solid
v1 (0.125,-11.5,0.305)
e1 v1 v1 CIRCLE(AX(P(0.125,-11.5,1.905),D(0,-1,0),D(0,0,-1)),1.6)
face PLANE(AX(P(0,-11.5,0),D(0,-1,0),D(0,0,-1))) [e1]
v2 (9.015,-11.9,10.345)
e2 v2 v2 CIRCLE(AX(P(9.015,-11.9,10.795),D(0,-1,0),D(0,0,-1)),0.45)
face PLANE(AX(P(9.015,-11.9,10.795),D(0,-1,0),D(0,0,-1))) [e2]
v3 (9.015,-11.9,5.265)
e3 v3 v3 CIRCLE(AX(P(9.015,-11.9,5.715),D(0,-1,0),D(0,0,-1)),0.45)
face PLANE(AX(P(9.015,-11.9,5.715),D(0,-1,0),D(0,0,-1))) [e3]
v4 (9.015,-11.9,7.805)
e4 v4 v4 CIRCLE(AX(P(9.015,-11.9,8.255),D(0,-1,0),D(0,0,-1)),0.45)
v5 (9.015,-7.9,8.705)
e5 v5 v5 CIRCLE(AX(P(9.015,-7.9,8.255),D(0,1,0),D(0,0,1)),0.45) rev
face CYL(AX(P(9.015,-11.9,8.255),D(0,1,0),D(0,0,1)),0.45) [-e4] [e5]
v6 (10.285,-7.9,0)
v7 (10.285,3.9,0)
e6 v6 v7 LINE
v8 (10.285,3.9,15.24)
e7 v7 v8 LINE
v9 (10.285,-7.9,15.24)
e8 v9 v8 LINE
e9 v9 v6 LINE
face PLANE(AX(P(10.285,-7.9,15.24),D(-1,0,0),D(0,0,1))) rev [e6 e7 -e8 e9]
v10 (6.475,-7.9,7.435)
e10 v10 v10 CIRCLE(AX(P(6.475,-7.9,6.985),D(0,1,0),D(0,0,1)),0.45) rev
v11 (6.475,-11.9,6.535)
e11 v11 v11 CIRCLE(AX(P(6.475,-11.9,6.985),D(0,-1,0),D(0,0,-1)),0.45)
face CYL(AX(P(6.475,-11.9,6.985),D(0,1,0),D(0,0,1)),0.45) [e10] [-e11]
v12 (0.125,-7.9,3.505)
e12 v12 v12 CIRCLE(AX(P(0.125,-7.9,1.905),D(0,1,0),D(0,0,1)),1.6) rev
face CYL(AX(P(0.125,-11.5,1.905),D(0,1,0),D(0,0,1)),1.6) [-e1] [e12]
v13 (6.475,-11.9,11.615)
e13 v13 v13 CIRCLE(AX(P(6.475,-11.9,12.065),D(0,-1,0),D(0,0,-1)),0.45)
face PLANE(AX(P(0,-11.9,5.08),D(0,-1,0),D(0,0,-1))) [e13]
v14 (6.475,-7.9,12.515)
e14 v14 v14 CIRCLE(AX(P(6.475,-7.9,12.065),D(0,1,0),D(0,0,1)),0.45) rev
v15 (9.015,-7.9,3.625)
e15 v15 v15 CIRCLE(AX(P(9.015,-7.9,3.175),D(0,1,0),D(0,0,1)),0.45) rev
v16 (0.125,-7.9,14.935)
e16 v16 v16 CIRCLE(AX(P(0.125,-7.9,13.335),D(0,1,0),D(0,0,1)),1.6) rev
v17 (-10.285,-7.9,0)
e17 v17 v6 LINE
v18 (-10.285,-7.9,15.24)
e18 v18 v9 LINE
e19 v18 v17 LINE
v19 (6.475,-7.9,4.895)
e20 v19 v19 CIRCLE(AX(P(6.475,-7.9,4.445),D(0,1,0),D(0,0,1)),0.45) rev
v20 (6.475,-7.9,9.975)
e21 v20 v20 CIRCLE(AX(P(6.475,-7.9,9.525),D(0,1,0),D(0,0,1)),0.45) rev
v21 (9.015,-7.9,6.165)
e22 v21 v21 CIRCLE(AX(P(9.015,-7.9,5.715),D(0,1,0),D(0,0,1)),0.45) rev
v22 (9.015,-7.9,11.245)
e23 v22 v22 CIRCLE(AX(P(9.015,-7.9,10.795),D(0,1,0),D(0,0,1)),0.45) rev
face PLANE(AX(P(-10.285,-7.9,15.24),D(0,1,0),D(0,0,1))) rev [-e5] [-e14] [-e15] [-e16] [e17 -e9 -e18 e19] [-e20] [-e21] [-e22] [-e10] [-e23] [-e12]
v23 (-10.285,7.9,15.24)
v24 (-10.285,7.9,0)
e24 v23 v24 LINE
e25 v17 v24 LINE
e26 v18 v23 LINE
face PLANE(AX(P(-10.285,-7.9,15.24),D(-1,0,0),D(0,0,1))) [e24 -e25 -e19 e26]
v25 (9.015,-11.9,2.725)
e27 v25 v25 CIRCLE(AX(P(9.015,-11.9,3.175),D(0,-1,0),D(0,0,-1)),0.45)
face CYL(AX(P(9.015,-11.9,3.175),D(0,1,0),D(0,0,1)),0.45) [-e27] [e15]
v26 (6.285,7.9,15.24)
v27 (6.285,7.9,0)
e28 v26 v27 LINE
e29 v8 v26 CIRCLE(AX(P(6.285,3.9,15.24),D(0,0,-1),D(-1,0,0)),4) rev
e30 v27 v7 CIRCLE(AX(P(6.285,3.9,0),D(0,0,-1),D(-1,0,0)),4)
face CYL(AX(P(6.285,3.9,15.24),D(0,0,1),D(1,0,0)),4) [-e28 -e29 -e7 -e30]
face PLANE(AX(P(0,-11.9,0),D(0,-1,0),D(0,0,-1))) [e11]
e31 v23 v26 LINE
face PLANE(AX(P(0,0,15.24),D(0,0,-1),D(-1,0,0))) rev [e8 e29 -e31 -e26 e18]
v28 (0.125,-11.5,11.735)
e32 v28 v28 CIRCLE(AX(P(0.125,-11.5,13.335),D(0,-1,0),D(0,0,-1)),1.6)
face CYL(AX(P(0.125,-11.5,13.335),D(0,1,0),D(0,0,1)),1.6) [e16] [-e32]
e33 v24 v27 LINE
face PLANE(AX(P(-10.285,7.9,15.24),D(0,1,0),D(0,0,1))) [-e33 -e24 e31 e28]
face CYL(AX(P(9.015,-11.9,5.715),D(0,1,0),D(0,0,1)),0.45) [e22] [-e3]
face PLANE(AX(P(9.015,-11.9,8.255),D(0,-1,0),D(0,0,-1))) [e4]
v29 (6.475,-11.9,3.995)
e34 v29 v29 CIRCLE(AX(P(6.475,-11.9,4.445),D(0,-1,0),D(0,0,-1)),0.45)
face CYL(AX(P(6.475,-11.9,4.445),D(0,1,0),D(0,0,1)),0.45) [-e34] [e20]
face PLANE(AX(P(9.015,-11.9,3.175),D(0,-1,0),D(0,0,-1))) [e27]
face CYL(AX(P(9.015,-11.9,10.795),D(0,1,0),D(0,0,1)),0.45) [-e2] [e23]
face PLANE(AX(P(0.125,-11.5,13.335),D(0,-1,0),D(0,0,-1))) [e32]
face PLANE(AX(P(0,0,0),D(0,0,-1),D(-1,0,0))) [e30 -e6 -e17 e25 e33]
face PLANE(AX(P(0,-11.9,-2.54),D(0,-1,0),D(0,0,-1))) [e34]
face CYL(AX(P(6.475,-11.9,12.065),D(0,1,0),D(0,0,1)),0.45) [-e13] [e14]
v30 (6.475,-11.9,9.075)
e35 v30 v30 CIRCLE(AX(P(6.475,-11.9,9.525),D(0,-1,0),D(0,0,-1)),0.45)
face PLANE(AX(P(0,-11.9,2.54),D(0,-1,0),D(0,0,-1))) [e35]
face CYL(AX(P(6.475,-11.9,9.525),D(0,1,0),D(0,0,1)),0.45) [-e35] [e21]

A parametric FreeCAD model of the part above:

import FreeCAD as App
import Part
import Sketcher
from FreeCAD import Vector


def edges_at(feature, points):
    """Names of the edges that pass closest to the given points."""
    edges = feature.Shape.Edges
    near = lambda p: min(range(len(edges)), key=lambda i: edges[i].distToShape(Part.Vertex(*p))[0])
    return sorted({f"Edge{near(p) + 1}" for p in points})

doc = App.newDocument("Part")
body = doc.addObject("PartDesign::Body", "Body")

# Sketch on XY plane
sketch1 = body.newObject("Sketcher::SketchObject", "Sketch")
sketch1.AttachmentSupport = (doc.getObject("XY_Plane"), [""])
sketch1.MapMode = "FlatFace"
sketch1.addGeometry([
    Part.LineSegment(Vector(-10, 8, 0), Vector(-10, -8, 0)),
    Part.LineSegment(Vector(-10, -8, 0), Vector(10, -8, 0)),
    Part.LineSegment(Vector(10, -8, 0), Vector(10, 8, 0)),
    Part.LineSegment(Vector(10, 8, 0), Vector(-10, 8, 0)),
], False)
sketch1.addConstraint([
    Sketcher.Constraint("Coincident", 0, 2, 1, 1),
    Sketcher.Constraint("Coincident", 1, 2, 2, 1),
    Sketcher.Constraint("Coincident", 2, 2, 3, 1),
    Sketcher.Constraint("Coincident", 3, 2, 0, 1),
    Sketcher.Constraint("Vertical", 0),
    Sketcher.Constraint("Horizontal", 1),
    Sketcher.Constraint("Vertical", 2),
    Sketcher.Constraint("Horizontal", 3),
    Sketcher.Constraint("Symmetric", 0, 2, 2, 2, -1, 1),
    Sketcher.Constraint("DistanceY", 0, 2, 0, 1, 15.8),
    Sketcher.Constraint("DistanceX", 1, 1, 1, 2, 20.57),
])
pad1 = body.newObject("PartDesign::Pad", "Pad")
pad1.Profile = sketch1
pad1.Length = 15.24
doc.recompute()

fillet = body.newObject("PartDesign::Fillet", "Fillet")
fillet.Base = (pad1, edges_at(pad1, [(10.285, 7.9, 7.62)]))
fillet.Radius = 4

# Sketch on XZ plane
sketch2 = body.newObject("Sketcher::SketchObject", "Sketch001")
sketch2.AttachmentSupport = (doc.getObject("XZ_Plane"), [""])
sketch2.MapMode = "FlatFace"
sketch2.AttachmentOffset = App.Placement(Vector(0, 0, 7.9), App.Rotation())
sketch2.addGeometry([
    Part.Circle(Vector(0.1, 1.9, 0), Vector(0, 0, 1), 1.6),
    Part.Circle(Vector(0.1, 13.3, 0), Vector(0, 0, 1), 1.6),
], False)
sketch2.addConstraint([
    Sketcher.Constraint("Equal", 0, 1),
    Sketcher.Constraint("Vertical", 0, 3, 1, 3),
    Sketcher.Constraint("Diameter", 0, 3.2),
    Sketcher.Constraint("DistanceY", 0, 3, 1, 3, 11.43),
    Sketcher.Constraint("DistanceX", -1, 1, 0, 3, 0.125),
    Sketcher.Constraint("DistanceY", -1, 1, 0, 3, 1.905),
])
pad2 = body.newObject("PartDesign::Pad", "Pad001")
pad2.Profile = sketch2
pad2.Length = 3.6

# Sketch on XZ plane
sketch3 = body.newObject("Sketcher::SketchObject", "Sketch002")
sketch3.AttachmentSupport = (doc.getObject("XZ_Plane"), [""])
sketch3.MapMode = "FlatFace"
sketch3.AttachmentOffset = App.Placement(Vector(0, 0, 7.9), App.Rotation())
sketch3.addGeometry(Part.Circle(Vector(6.47, 6.99, 0), Vector(0, 0, 1), 0.45), False)
sketch3.addConstraint([
    Sketcher.Constraint("Diameter", 0, 0.9),
    Sketcher.Constraint("DistanceX", -1, 1, 0, 3, 6.475),
    Sketcher.Constraint("DistanceY", -1, 1, 0, 3, 6.985),
])
pad3 = body.newObject("PartDesign::Pad", "Pad002")
pad3.Profile = sketch3
pad3.Length = 4

# Sketch on XZ plane
sketch4 = body.newObject("Sketcher::SketchObject", "Sketch003")
sketch4.AttachmentSupport = (doc.getObject("XZ_Plane"), [""])
sketch4.MapMode = "FlatFace"
sketch4.AttachmentOffset = App.Placement(Vector(0, 0, 7.9), App.Rotation())
sketch4.addGeometry(Part.Circle(Vector(9.02, 8.26, 0), Vector(0, 0, 1), 0.45), False)
sketch4.addConstraint([
    Sketcher.Constraint("Diameter", 0, 0.9),
    Sketcher.Constraint("DistanceX", -1, 1, 0, 3, 9.015),
    Sketcher.Constraint("DistanceY", -1, 1, 0, 3, 8.255),
])
pad4 = body.newObject("PartDesign::Pad", "Pad003")
pad4.Profile = sketch4
pad4.Length = 4
doc.recompute()

linearpattern = body.newObject("PartDesign::LinearPattern", "LinearPattern")
linearpattern.Originals = [pad4]
linearpattern.Direction = (doc.getObject("Z_Axis"), [""])
linearpattern.Mode = "offset"
linearpattern.Offset = 2.54
linearpattern.Occurrences = 3
linearpattern.Reversed = True
body.Tip = linearpattern
doc.recompute()

linearpattern2 = body.newObject("PartDesign::LinearPattern", "LinearPattern001")
linearpattern2.Originals = [pad4]
linearpattern2.Direction = (doc.getObject("Z_Axis"), [""])
linearpattern2.Mode = "offset"
linearpattern2.Offset = 2.54
linearpattern2.Occurrences = 2
body.Tip = linearpattern2
doc.recompute()

linearpattern3 = body.newObject("PartDesign::LinearPattern", "LinearPattern002")
linearpattern3.Originals = [pad3]
linearpattern3.Direction = (doc.getObject("Z_Axis"), [""])
linearpattern3.Mode = "offset"
linearpattern3.Offset = 2.54
linearpattern3.Occurrences = 2
linearpattern3.Reversed = True
body.Tip = linearpattern3
doc.recompute()

linearpattern4 = body.newObject("PartDesign::LinearPattern", "LinearPattern003")
linearpattern4.Originals = [pad3]
linearpattern4.Direction = (doc.getObject("Z_Axis"), [""])
linearpattern4.Mode = "offset"
linearpattern4.Offset = 2.54
linearpattern4.Occurrences = 3
body.Tip = linearpattern4

doc.recompute()
